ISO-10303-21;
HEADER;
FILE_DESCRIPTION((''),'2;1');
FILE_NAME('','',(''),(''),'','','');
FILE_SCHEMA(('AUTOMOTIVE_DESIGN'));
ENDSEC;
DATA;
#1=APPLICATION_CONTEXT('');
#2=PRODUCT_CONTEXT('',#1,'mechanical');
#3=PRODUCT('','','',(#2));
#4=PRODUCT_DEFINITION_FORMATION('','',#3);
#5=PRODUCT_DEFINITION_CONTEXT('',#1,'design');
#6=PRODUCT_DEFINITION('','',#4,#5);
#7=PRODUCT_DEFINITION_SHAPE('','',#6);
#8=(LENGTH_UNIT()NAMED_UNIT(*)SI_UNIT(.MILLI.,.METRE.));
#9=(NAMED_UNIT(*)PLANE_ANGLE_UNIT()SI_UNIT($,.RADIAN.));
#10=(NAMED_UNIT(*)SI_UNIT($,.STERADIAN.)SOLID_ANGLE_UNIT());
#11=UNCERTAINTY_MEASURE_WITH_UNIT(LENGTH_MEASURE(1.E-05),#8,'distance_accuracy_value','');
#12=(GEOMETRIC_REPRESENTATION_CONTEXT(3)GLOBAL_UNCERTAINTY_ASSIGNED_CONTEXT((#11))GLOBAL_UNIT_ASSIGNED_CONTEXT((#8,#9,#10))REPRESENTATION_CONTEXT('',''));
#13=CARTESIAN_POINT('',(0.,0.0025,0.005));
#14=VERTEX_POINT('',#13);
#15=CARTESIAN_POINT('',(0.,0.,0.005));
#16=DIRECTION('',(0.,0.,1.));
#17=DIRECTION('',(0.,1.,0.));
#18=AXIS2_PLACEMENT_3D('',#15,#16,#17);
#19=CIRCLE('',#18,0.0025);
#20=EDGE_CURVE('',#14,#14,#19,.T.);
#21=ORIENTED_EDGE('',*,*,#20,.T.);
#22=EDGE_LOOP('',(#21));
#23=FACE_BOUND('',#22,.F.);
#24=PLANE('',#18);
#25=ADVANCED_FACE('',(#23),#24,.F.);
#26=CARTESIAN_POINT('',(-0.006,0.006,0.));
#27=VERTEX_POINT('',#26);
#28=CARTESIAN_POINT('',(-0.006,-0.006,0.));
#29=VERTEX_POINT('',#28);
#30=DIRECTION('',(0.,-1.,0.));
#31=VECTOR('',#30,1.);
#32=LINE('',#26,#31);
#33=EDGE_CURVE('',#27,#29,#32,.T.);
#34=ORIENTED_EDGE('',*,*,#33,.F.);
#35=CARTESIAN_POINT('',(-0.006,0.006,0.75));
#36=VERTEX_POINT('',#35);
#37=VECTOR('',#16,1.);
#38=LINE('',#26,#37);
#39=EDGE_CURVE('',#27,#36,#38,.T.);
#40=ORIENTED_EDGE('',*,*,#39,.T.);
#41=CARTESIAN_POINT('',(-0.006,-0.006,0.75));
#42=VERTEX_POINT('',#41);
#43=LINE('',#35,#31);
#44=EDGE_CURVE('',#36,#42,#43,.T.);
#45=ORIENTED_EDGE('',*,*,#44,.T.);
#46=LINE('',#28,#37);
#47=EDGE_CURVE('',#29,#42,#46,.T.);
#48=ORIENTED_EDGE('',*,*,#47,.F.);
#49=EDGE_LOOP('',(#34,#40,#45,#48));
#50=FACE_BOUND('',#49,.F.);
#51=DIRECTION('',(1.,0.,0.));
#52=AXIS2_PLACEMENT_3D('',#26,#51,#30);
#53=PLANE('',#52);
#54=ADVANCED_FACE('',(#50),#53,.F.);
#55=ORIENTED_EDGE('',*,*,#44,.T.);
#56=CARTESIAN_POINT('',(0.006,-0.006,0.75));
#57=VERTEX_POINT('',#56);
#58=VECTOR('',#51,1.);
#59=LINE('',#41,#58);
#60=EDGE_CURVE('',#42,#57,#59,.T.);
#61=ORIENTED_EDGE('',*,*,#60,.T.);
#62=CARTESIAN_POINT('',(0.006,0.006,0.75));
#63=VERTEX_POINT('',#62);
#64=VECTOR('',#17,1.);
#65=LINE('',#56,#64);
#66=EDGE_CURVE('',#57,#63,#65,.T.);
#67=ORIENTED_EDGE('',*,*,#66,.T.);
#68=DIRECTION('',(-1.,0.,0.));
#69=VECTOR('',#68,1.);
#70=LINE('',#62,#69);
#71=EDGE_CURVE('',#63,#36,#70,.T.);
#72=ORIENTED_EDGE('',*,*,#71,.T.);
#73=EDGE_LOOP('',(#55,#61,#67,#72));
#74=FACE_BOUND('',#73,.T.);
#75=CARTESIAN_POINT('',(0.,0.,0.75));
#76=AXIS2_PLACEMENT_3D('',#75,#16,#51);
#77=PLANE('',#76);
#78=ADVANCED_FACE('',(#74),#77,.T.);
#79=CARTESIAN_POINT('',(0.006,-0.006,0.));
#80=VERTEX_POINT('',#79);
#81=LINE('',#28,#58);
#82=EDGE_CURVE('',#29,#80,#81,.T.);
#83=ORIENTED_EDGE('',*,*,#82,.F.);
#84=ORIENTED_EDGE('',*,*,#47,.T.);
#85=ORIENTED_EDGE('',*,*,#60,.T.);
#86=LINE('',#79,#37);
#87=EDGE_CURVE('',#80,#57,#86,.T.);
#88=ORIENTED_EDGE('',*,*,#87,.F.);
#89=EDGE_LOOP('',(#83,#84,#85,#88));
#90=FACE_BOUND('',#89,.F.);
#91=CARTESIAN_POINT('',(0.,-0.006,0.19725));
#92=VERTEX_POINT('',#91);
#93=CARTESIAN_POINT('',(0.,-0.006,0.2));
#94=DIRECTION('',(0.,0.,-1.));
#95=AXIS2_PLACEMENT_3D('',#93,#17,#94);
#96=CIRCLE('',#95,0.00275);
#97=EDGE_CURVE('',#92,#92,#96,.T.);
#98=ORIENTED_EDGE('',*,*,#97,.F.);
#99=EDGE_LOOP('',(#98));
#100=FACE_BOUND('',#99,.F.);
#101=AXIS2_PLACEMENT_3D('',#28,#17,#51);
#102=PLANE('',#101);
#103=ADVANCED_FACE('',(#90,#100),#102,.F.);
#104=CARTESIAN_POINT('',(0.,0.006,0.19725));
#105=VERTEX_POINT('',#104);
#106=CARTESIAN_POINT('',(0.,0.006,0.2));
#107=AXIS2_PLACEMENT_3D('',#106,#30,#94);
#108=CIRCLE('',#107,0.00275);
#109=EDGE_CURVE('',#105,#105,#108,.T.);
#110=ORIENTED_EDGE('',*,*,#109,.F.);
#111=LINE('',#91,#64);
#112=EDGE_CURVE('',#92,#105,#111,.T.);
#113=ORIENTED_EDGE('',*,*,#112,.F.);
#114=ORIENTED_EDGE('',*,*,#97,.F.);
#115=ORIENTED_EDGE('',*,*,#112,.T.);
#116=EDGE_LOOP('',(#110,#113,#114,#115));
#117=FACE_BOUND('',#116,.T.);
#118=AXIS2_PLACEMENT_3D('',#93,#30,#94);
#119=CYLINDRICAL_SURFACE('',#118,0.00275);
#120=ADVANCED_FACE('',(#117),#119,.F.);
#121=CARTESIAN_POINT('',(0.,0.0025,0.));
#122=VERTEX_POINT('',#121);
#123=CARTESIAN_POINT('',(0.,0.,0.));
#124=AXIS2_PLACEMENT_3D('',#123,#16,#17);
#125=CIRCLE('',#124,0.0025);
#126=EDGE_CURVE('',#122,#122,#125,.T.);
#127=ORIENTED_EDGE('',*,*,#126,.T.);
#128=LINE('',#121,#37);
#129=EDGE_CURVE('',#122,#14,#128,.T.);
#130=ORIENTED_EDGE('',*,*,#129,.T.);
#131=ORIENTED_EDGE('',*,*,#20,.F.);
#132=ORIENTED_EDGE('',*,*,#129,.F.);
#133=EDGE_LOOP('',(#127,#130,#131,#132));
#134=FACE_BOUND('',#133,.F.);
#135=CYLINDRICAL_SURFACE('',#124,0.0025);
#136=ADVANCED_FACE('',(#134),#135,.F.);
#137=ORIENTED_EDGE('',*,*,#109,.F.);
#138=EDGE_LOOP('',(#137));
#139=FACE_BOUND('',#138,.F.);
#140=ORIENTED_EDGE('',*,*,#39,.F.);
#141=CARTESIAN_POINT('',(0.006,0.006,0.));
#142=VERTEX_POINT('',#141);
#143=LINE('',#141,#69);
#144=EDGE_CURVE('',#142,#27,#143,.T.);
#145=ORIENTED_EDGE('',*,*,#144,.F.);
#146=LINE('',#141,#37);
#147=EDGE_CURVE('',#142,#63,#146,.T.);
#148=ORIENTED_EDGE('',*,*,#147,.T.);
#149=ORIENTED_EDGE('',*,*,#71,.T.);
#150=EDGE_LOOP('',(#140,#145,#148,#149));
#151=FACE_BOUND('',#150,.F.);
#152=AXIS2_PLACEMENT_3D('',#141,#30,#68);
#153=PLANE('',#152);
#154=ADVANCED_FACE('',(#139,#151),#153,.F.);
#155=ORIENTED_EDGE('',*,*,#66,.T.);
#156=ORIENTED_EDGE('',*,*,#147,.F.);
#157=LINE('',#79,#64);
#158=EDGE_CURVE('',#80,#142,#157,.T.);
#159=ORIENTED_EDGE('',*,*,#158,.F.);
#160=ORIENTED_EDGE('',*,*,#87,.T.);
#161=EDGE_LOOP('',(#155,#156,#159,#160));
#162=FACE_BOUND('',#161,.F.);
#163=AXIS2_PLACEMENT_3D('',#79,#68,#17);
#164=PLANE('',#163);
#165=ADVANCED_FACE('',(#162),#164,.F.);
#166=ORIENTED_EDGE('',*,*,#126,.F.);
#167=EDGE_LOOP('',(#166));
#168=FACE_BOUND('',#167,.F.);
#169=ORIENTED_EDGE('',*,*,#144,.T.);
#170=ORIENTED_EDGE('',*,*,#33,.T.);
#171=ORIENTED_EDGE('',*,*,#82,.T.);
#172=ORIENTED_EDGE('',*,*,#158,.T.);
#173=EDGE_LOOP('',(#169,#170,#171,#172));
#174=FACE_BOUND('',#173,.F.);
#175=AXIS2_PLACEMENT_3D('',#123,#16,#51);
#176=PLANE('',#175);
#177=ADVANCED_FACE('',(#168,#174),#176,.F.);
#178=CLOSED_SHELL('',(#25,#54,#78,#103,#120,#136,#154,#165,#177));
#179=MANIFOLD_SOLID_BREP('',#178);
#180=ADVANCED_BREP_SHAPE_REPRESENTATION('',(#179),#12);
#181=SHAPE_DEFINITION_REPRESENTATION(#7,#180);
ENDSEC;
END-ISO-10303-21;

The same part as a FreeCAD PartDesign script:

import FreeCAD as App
import Part
import Sketcher
from FreeCAD import Vector
Q = App.Units.Quantity


def add_polygon(sketch, points):
    """Adds a closed chain of lines whose ends are joined by coincident constraints."""
    first, n = sketch.GeometryCount, len(points)
    for a, b in zip(points, points[1:] + points[:1]):
        sketch.addGeometry(Part.LineSegment(App.Vector(*a, 0), App.Vector(*b, 0)), False)
    for i in range(n):
        sketch.addConstraint(Sketcher.Constraint("Coincident", first + i, 2, first + (i + 1) % n, 1))

doc = App.newDocument("Part")
body = doc.addObject("PartDesign::Body", "Body")

# Sketch on XY plane
sketch1 = body.newObject("Sketcher::SketchObject", "Sketch")
sketch1.AttachmentSupport = (doc.getObject("XY_Plane"), [""])
sketch1.MapMode = "FlatFace"
add_polygon(sketch1, [(-0.006, 0.006), (-0.006, -0.006), (0.006, -0.006), (0.006, 0.006)])  # lines 0-3
sketch1.addConstraint(Sketcher.Constraint("Vertical", 0))
sketch1.addConstraint(Sketcher.Constraint("Horizontal", 1))
sketch1.addConstraint(Sketcher.Constraint("Vertical", 2))
sketch1.addConstraint(Sketcher.Constraint("Horizontal", 3))
sketch1.addConstraint(Sketcher.Constraint("Symmetric", 0, 2, 2, 2, -1, 1))
sketch1.addConstraint(Sketcher.Constraint("Equal", 3, 0))
sketch1.addConstraint(Sketcher.Constraint("DistanceX", 0, 2, -1, 1, Q("0.006 mm")))
pad1 = body.newObject("PartDesign::Pad", "Pad")
pad1.Profile = sketch1
pad1.Length = 0.75

# Sketch on XZ plane
sketch2 = body.newObject("Sketcher::SketchObject", "Sketch001")
sketch2.AttachmentSupport = (doc.getObject("XZ_Plane"), [""])
sketch2.MapMode = "FlatFace"
sketch2.AttachmentOffset = App.Placement(Vector(0, 0, 0.006), App.Rotation())
sketch2.addGeometry(Part.Circle(Vector(0, 0.2, 0), Vector(0, 0, 1), 0.00275), False)
sketch2.addConstraint(Sketcher.Constraint("PointOnObject", 0, 3, -2))
sketch2.addConstraint(Sketcher.Constraint("Diameter", 0, Q("0.0055 mm")))
sketch2.addConstraint(Sketcher.Constraint("DistanceY", -1, 1, 0, 3, Q("0.2 mm")))
doc.recompute()
hole = body.newObject("PartDesign::Hole", "Hole")
hole.Profile = sketch2
hole.ThreadType = "None"
hole.Diameter = 0.0055
hole.DepthType = "ThroughAll"

# Sketch on XY plane
sketch3 = body.newObject("Sketcher::SketchObject", "Sketch002")
sketch3.AttachmentSupport = (doc.getObject("XY_Plane"), [""])
sketch3.MapMode = "FlatFace"
sketch3.addGeometry(Part.Circle(Vector(0, 0, 0), Vector(0, 0, 1), 0.0025), False)
sketch3.addConstraint(Sketcher.Constraint("Coincident", 0, 3, -1, 1))
sketch3.addConstraint(Sketcher.Constraint("Diameter", 0, Q("0.005 mm")))
doc.recompute()
hole2 = body.newObject("PartDesign::Hole", "Hole001")
hole2.Profile = sketch3
hole2.ThreadType = "None"
hole2.Diameter = 0.005
hole2.DepthType = "Dimension"
hole2.Depth = 0.005
hole2.DrillPoint = "Flat"
hole2.Reversed = True

doc.recompute()
